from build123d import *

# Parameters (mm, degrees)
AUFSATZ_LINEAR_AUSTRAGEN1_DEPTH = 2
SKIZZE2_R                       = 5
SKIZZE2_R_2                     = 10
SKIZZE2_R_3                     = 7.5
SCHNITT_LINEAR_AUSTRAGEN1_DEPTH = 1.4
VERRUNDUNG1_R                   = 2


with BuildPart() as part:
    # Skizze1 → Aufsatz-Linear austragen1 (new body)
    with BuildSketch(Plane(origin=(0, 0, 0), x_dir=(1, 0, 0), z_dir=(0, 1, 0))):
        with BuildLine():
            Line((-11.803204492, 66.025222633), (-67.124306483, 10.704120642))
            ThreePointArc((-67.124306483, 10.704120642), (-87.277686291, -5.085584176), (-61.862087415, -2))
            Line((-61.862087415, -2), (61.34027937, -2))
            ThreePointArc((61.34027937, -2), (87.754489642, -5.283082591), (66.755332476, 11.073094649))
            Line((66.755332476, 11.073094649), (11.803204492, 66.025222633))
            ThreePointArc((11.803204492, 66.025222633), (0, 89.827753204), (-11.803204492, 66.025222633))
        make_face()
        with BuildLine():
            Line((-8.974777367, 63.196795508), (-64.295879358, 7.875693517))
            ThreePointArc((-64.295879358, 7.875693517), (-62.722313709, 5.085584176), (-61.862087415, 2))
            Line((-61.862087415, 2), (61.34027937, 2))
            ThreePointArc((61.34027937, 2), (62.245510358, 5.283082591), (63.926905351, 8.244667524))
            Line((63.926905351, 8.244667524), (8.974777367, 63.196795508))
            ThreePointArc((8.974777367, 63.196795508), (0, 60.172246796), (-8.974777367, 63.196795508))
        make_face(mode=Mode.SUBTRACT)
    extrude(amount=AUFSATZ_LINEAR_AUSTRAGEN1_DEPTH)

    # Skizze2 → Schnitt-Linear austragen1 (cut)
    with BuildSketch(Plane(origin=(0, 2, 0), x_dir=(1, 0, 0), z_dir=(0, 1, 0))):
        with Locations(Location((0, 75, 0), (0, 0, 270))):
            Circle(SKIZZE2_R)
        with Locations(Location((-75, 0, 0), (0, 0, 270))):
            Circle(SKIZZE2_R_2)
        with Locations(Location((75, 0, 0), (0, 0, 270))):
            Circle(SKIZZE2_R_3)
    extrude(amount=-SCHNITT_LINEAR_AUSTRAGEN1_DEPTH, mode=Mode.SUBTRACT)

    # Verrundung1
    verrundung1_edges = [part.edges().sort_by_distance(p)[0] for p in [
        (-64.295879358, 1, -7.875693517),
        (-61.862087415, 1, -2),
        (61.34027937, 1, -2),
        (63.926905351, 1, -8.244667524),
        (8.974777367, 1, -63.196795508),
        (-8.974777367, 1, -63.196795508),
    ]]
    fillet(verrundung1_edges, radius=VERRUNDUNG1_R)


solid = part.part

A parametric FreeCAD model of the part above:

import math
import FreeCAD as App
import Part
import Sketcher
from FreeCAD import Vector
Q = App.Units.Quantity


def edges_at(feature, points):
    """Names of the edges that pass closest to the given points."""
    edges = feature.Shape.Edges
    near = lambda p: min(range(len(edges)), key=lambda i: edges[i].distToShape(Part.Vertex(*p))[0])
    return sorted({f"Edge{near(p) + 1}" for p in points})

doc = App.newDocument("Part")
body = doc.addObject("PartDesign::Body", "Body")

# Sketch on XZ plane
sketch1 = body.newObject("Sketcher::SketchObject", "Sketch")
sketch1.AttachmentSupport = (doc.getObject("XZ_Plane"), [""])
sketch1.MapMode = "FlatFace"
sketch1.addGeometry(Part.LineSegment(Vector(-11.803204, -66.025223, 0), Vector(-67.124306, -10.704121, 0)), False)
sketch1.addGeometry(Part.ArcOfCircle(Part.Circle(Vector(-75, 0, 0), Vector(0, 0, 1), 13.289272), math.radians(8.655749), math.radians(306.344251)), False)
sketch1.addGeometry(Part.LineSegment(Vector(-61.862087, 2, 0), Vector(61.340279, 2, 0)), False)
sketch1.addGeometry(Part.ArcOfCircle(Part.Circle(Vector(75, 0, 0), Vector(0, 0, 1), 13.80536), math.radians(-126.670175), math.radians(171.670175)), False)
sketch1.addGeometry(Part.LineSegment(Vector(66.755332, -11.073095, 0), Vector(11.803204, -66.025223, 0)), False)
sketch1.addGeometry(Part.ArcOfCircle(Part.Circle(Vector(0, -75, 0), Vector(0, 0, 1), 14.827753), math.radians(142.751808), math.radians(397.248192)), False)
sketch1.addGeometry(Part.LineSegment(Vector(-64.295879, -7.875694, 0), Vector(-8.974777, -63.196796, 0)), False)
sketch1.addGeometry(Part.ArcOfCircle(Part.Circle(Vector(0, -75, 0), Vector(0, 0, 1), 14.827753), math.radians(52.751808), math.radians(127.248192)), False)
sketch1.addGeometry(Part.LineSegment(Vector(8.974777, -63.196796, 0), Vector(63.926905, -8.244668, 0)), False)
sketch1.addGeometry(Part.ArcOfCircle(Part.Circle(Vector(75, 0, 0), Vector(0, 0, 1), 13.80536), math.radians(-171.670175), math.radians(-143.329825)), False)
sketch1.addGeometry(Part.LineSegment(Vector(61.340279, -2, 0), Vector(-61.862087, -2, 0)), False)
sketch1.addGeometry(Part.ArcOfCircle(Part.Circle(Vector(-75, 0, 0), Vector(0, 0, 1), 13.289272), math.radians(-36.344251), math.radians(-8.655749)), False)
sketch1.addConstraint(Sketcher.Constraint("Coincident", 0, 2, 1, 2))
sketch1.addConstraint(Sketcher.Constraint("Coincident", 1, 1, 2, 1))
sketch1.addConstraint(Sketcher.Constraint("Coincident", 2, 2, 3, 2))
sketch1.addConstraint(Sketcher.Constraint("Coincident", 3, 1, 4, 1))
sketch1.addConstraint(Sketcher.Constraint("Coincident", 4, 2, 5, 2))
sketch1.addConstraint(Sketcher.Constraint("Coincident", 5, 1, 0, 1))
sketch1.addConstraint(Sketcher.Constraint("Coincident", 6, 2, 7, 2))
sketch1.addConstraint(Sketcher.Constraint("Coincident", 7, 1, 8, 1))
sketch1.addConstraint(Sketcher.Constraint("Coincident", 8, 2, 9, 2))
sketch1.addConstraint(Sketcher.Constraint("Coincident", 9, 1, 10, 1))
sketch1.addConstraint(Sketcher.Constraint("Coincident", 10, 2, 11, 2))
sketch1.addConstraint(Sketcher.Constraint("Coincident", 11, 1, 6, 1))
sketch1.addConstraint(Sketcher.Constraint("Horizontal", 2))
sketch1.addConstraint(Sketcher.Constraint("Horizontal", 10))
sketch1.addConstraint(Sketcher.Constraint("Coincident", 7, 3, 5, 3))
sketch1.addConstraint(Sketcher.Constraint("Coincident", 9, 3, 3, 3))
sketch1.addConstraint(Sketcher.Constraint("Coincident", 11, 3, 1, 3))
sketch1.addConstraint(Sketcher.Constraint("Equal", 5, 7))
sketch1.addConstraint(Sketcher.Constraint("Equal", 3, 9))
sketch1.addConstraint(Sketcher.Constraint("Equal", 1, 11))
sketch1.addConstraint(Sketcher.Constraint("Symmetric", 1, 3, 3, 3, -1, 1))
sketch1.addConstraint(Sketcher.Constraint("Symmetric", 4, 2, 5, 1, -2))
sketch1.addConstraint(Sketcher.Constraint("Symmetric", 2, 2, 9, 1, -1))
sketch1.addConstraint(Sketcher.Constraint("Perpendicular", 0, 4))
sketch1.addConstraint(Sketcher.Constraint("Perpendicular", 4, 6))
sketch1.addConstraint(Sketcher.Constraint("Perpendicular", 6, 8))
sketch1.addConstraint(Sketcher.Constraint("Horizontal", 6, 2, 7, 1))
sketch1.addConstraint(Sketcher.Constraint("Equal", 0, 6))
sketch1.addConstraint(Sketcher.Constraint("Equal", 4, 8))
sketch1.addConstraint(Sketcher.Constraint("Angle", 0, Q("135 deg")))
sketch1.addConstraint(Sketcher.Constraint("DistanceX", 1, 3, -1, 1, 75.0))
sketch1.addConstraint(Sketcher.Constraint("DistanceY", -1, 1, 1, 1, 2.0))
sketch1.addConstraint(Sketcher.Constraint("Radius", 1, 13.289272))
sketch1.addConstraint(Sketcher.Constraint("Radius", 3, 13.80536))
sketch1.addConstraint(Sketcher.Constraint("Radius", 5, 14.827753))
sketch1.addConstraint(Sketcher.Constraint("DistanceX", 0, 2, 5, 1, 55.321102))
pad1 = body.newObject("PartDesign::Pad", "Pad")
pad1.Profile = sketch1
pad1.Length = 2
pad1.Reversed = True

# Sketch on XZ plane
sketch2 = body.newObject("Sketcher::SketchObject", "Sketch001")
sketch2.AttachmentSupport = (doc.getObject("XZ_Plane"), [""])
sketch2.MapMode = "FlatFace"
sketch2.AttachmentOffset = App.Placement(Vector(0, 0, -2), App.Rotation())
sketch2.addGeometry(Part.Circle(Vector(0, -75, 0), Vector(0, 0, 1), 5), False)
sketch2.addGeometry(Part.Circle(Vector(-75, 0, 0), Vector(0, 0, 1), 10), False)
sketch2.addGeometry(Part.Circle(Vector(75, 0, 0), Vector(0, 0, 1), 7.5), False)
sketch2.addConstraint(Sketcher.Constraint("Symmetric", 1, 3, 2, 3, -1, 1))
sketch2.addConstraint(Sketcher.Constraint("PointOnObject", 0, 3, -2))
sketch2.addConstraint(Sketcher.Constraint("PointOnObject", 1, 3, -1))
sketch2.addConstraint(Sketcher.Constraint("Diameter", 0, 10.0))
sketch2.addConstraint(Sketcher.Constraint("Diameter", 1, 20.0))
sketch2.addConstraint(Sketcher.Constraint("Diameter", 2, 15.0))
sketch2.addConstraint(Sketcher.Constraint("DistanceY", 0, 3, -1, 1, 75.0))
sketch2.addConstraint(Sketcher.Constraint("DistanceX", 1, 3, -1, 1, 75.0))
pocket1 = body.newObject("PartDesign::Pocket", "Pocket")
pocket1.Profile = sketch2
pocket1.Length = 1.4
pocket1.Reversed = True
doc.recompute()

fillet = body.newObject("PartDesign::Fillet", "Fillet")
fillet.Base = (pocket1, edges_at(pocket1, [
    (-64.296, 1, -7.876),
    (-61.862, 1, -2),
    (61.34, 1, -2),
    (63.927, 1, -8.245),
    (8.975, 1, -63.197),
    (-8.975, 1, -63.197),
]))
fillet.Radius = 2

doc.recompute()
